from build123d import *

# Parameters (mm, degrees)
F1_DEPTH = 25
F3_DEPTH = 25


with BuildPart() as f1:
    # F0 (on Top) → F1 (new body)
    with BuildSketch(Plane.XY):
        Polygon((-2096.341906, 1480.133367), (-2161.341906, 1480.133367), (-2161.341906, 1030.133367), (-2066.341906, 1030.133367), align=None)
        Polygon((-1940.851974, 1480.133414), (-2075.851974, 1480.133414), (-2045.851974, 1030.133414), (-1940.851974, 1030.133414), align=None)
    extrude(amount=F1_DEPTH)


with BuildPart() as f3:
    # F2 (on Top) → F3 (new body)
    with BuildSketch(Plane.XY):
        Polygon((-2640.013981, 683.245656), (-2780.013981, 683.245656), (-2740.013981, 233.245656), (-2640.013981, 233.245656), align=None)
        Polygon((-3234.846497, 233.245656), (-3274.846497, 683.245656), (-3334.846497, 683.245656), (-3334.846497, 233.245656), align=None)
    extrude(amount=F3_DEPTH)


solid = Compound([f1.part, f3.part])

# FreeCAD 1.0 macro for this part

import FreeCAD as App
import Part
import Sketcher

V = App.Vector

doc = App.newDocument("Part")
params = doc.addObject("Spreadsheet::Sheet", "Params")
for row, (alias, value) in enumerate([
    ("sketch1_width", "65 mm"),
    ("sketch1_width2", "95 mm"),
    ("sketch1_width3", "135 mm"),
    ("sketch1_height", "450 mm"),
    ("pad1_length", "25 mm"),
    ("sketch2_width", "140 mm"),
    ("sketch2_width2", "100 mm"),
    ("sketch2_height", "450 mm"),
    ("pad2_length", "25 mm"),
], start=1):
    params.set(f"A{row}", alias)
    params.set(f"B{row}", "=" + value)
    params.setAlias(f"B{row}", alias)

body = doc.addObject("PartDesign::Body", "Body")
body.AllowCompound = True

sketch1 = doc.addObject("Sketcher::SketchObject", "Sketch")
body.addObject(sketch1)
sketch1.AttachmentSupport = (doc.XY_Plane, [""])
sketch1.MapMode = "FlatFace"
sketch1.addGeometry([
    Part.LineSegment(V(-2096, 1480, 0), V(-2161, 1480, 0)),
    Part.LineSegment(V(-2161, 1480, 0), V(-2161, 1030, 0)),
    Part.LineSegment(V(-2161, 1030, 0), V(-2066, 1030, 0)),
    Part.LineSegment(V(-2066, 1030, 0), V(-2096, 1480, 0)),
    Part.LineSegment(V(-1941, 1480, 0), V(-2076, 1480, 0)),
    Part.LineSegment(V(-2076, 1480, 0), V(-2046, 1030, 0)),
    Part.LineSegment(V(-2046, 1030, 0), V(-1941, 1030, 0)),
    Part.LineSegment(V(-1941, 1030, 0), V(-1941, 1480, 0)),
], False)
sketch1.addConstraint([
    Sketcher.Constraint("Coincident", 0, 2, 1, 1),
    Sketcher.Constraint("Coincident", 1, 2, 2, 1),
    Sketcher.Constraint("Coincident", 2, 2, 3, 1),
    Sketcher.Constraint("Coincident", 3, 2, 0, 1),
    Sketcher.Constraint("Coincident", 4, 2, 5, 1),
    Sketcher.Constraint("Coincident", 5, 2, 6, 1),
    Sketcher.Constraint("Coincident", 6, 2, 7, 1),
    Sketcher.Constraint("Coincident", 7, 2, 4, 1),
    Sketcher.Constraint("Horizontal", 0),
    Sketcher.Constraint("Vertical", 1),
    Sketcher.Constraint("Horizontal", 2),
    Sketcher.Constraint("Horizontal", 4),
    Sketcher.Constraint("Horizontal", 6),
    Sketcher.Constraint("Vertical", 7),
    Sketcher.Constraint("Parallel", 3, 5),
    Sketcher.Constraint("Equal", 1, 7),
    Sketcher.Constraint("DistanceX", 0, 2, 0, 1, 65.0),
    Sketcher.Constraint("DistanceX", 2, 1, 2, 2, 95.0),
    Sketcher.Constraint("DistanceX", 4, 2, 4, 1, 135.0),
    Sketcher.Constraint("DistanceY", 1, 2, 1, 1, 450.0),
    Sketcher.Constraint("DistanceX", 3, 2, 4, 2, 20.489932),
    Sketcher.Constraint("DistanceX", 0, 2, -1, 1, 2161.341906),
    Sketcher.Constraint("DistanceY", -1, 1, 0, 2, 1480.133367),
    Sketcher.Constraint("DistanceY", -1, 1, 4, 2, 1480.133414),
])
sketch1.setExpression("Constraints[16]", "Params.sketch1_width")
sketch1.setExpression("Constraints[17]", "Params.sketch1_width2")
sketch1.setExpression("Constraints[18]", "Params.sketch1_width3")
sketch1.setExpression("Constraints[19]", "Params.sketch1_height")
pad1 = doc.addObject("PartDesign::Pad", "Pad")
body.addObject(pad1)
pad1.Profile = sketch1
pad1.setExpression("Length", "Params.pad1_length")
body2 = doc.addObject("PartDesign::Body", "Body001")
body2.AllowCompound = True

sketch2 = doc.addObject("Sketcher::SketchObject", "Sketch001")
body2.addObject(sketch2)
sketch2.AttachmentSupport = (doc.getObject("XY_Plane001"), [""])
sketch2.MapMode = "FlatFace"
sketch2.addGeometry([
    Part.LineSegment(V(-2640, 683, 0), V(-2780, 683, 0)),
    Part.LineSegment(V(-2780, 683, 0), V(-2740, 233, 0)),
    Part.LineSegment(V(-2740, 233, 0), V(-2640, 233, 0)),
    Part.LineSegment(V(-2640, 233, 0), V(-2640, 683, 0)),
    Part.LineSegment(V(-3235, 233, 0), V(-3275, 683, 0)),
    Part.LineSegment(V(-3275, 683, 0), V(-3335, 683, 0)),
    Part.LineSegment(V(-3335, 683, 0), V(-3335, 233, 0)),
    Part.LineSegment(V(-3335, 233, 0), V(-3235, 233, 0)),
], False)
sketch2.addConstraint([
    Sketcher.Constraint("Coincident", 0, 2, 1, 1),
    Sketcher.Constraint("Coincident", 1, 2, 2, 1),
    Sketcher.Constraint("Coincident", 2, 2, 3, 1),
    Sketcher.Constraint("Coincident", 3, 2, 0, 1),
    Sketcher.Constraint("Coincident", 4, 2, 5, 1),
    Sketcher.Constraint("Coincident", 5, 2, 6, 1),
    Sketcher.Constraint("Coincident", 6, 2, 7, 1),
    Sketcher.Constraint("Coincident", 7, 2, 4, 1),
    Sketcher.Constraint("Horizontal", 0),
    Sketcher.Constraint("Horizontal", 2),
    Sketcher.Constraint("Vertical", 3),
    Sketcher.Constraint("Horizontal", 5),
    Sketcher.Constraint("Vertical", 6),
    Sketcher.Constraint("Horizontal", 7),
    Sketcher.Constraint("Parallel", 1, 4),
    Sketcher.Constraint("Horizontal", 3, 2, 4, 2),
    Sketcher.Constraint("Horizontal", 2, 2, 6, 2),
    Sketcher.Constraint("Equal", 2, 7),
    Sketcher.Constraint("DistanceX", 0, 2, 0, 1, 140.0),
    Sketcher.Constraint("DistanceX", 2, 1, 2, 2, 100.0),
    Sketcher.Constraint("DistanceY", 3, 1, 3, 2, 450.0),
    Sketcher.Constraint("DistanceX", 0, 2, -1, 1, 2780.013981),
    Sketcher.Constraint("DistanceY", -1, 1, 0, 2, 683.245656),
    Sketcher.Constraint("DistanceX", 4, 2, -1, 1, 3274.846497),
])
sketch2.setExpression("Constraints[18]", "Params.sketch2_width")
sketch2.setExpression("Constraints[19]", "Params.sketch2_width2")
sketch2.setExpression("Constraints[20]", "Params.sketch2_height")
pad2 = doc.addObject("PartDesign::Pad", "Pad001")
body2.addObject(pad2)
pad2.Profile = sketch2
pad2.setExpression("Length", "Params.pad2_length")

doc.recompute()
